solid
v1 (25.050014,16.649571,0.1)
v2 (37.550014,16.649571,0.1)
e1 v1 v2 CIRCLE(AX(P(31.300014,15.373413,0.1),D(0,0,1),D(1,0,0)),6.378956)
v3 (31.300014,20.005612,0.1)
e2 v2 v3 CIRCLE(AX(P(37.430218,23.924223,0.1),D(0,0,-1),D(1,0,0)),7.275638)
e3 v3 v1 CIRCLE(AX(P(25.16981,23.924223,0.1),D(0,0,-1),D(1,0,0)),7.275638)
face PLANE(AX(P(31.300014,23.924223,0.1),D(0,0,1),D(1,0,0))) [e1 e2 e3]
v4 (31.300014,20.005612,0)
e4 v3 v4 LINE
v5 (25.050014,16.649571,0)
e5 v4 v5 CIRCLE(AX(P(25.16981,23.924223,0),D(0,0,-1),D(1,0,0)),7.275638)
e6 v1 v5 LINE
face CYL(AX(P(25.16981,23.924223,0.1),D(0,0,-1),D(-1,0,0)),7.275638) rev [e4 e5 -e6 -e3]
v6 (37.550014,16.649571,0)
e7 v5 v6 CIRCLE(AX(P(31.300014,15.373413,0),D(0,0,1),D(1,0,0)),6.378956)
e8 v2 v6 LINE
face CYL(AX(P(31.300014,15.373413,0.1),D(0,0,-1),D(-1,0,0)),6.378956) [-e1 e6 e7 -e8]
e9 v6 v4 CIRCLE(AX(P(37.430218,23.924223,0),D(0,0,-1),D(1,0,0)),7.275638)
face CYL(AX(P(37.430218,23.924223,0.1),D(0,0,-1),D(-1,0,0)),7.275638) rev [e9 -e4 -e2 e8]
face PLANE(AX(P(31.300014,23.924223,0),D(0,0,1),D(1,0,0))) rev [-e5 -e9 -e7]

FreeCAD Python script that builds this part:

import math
import FreeCAD as App
import Part
import Sketcher
from FreeCAD import Vector
Q = App.Units.Quantity

doc = App.newDocument("Part")
body = doc.addObject("PartDesign::Body", "Body")

sketch1 = doc.addObject("Sketcher::SketchObject", "Sketch")
body.addObject(sketch1)
sketch1.AttachmentSupport = (doc.XY_Plane, [""])
sketch1.MapMode = "FlatFace"
sketch1.addGeometry([
    Part.ArcOfCircle(Part.Circle(Vector(31.300014, 15.373413, 0), Vector(0, 0, 1), 6.378956), math.radians(168.459676), math.radians(371.540324)),
    Part.ArcOfCircle(Part.Circle(Vector(37.430218, 23.924223, 0), Vector(0, 0, 1), 7.275638), math.radians(-147.412065), math.radians(-89.05656)),
    Part.ArcOfCircle(Part.Circle(Vector(25.16981, 23.924223, 0), Vector(0, 0, 1), 7.275638), math.radians(-90.94344), math.radians(-32.587935)),
], False)
sketch1.addConstraint([
    Sketcher.Constraint("Coincident", 0, 2, 1, 2),
    Sketcher.Constraint("Coincident", 1, 1, 2, 2),
    Sketcher.Constraint("Coincident", 2, 1, 0, 1),
    Sketcher.Constraint("Equal", 1, 2),
    Sketcher.Constraint("Horizontal", 1, 3, 2, 3),
    Sketcher.Constraint("Horizontal", 0, 2, 2, 1),
    Sketcher.Constraint("DistanceX", 2, 1, 0, 2, Q("12.5 mm")),
    Sketcher.Constraint("Radius", 0, Q("6.378956 mm")),
    Sketcher.Constraint("Radius", 1, Q("7.275638 mm")),
    Sketcher.Constraint("DistanceY", 0, 3, 1, 1, Q("4.632199 mm")),
    Sketcher.Constraint("DistanceX", -1, 1, 2, 3, Q("25.16981 mm")),
    Sketcher.Constraint("DistanceY", -1, 1, 0, 2, Q("16.649571 mm")),
])
pad1 = doc.addObject("PartDesign::Pad", "Pad")
body.addObject(pad1)
pad1.Profile = sketch1
pad1.Length = 0.1

doc.recompute()
